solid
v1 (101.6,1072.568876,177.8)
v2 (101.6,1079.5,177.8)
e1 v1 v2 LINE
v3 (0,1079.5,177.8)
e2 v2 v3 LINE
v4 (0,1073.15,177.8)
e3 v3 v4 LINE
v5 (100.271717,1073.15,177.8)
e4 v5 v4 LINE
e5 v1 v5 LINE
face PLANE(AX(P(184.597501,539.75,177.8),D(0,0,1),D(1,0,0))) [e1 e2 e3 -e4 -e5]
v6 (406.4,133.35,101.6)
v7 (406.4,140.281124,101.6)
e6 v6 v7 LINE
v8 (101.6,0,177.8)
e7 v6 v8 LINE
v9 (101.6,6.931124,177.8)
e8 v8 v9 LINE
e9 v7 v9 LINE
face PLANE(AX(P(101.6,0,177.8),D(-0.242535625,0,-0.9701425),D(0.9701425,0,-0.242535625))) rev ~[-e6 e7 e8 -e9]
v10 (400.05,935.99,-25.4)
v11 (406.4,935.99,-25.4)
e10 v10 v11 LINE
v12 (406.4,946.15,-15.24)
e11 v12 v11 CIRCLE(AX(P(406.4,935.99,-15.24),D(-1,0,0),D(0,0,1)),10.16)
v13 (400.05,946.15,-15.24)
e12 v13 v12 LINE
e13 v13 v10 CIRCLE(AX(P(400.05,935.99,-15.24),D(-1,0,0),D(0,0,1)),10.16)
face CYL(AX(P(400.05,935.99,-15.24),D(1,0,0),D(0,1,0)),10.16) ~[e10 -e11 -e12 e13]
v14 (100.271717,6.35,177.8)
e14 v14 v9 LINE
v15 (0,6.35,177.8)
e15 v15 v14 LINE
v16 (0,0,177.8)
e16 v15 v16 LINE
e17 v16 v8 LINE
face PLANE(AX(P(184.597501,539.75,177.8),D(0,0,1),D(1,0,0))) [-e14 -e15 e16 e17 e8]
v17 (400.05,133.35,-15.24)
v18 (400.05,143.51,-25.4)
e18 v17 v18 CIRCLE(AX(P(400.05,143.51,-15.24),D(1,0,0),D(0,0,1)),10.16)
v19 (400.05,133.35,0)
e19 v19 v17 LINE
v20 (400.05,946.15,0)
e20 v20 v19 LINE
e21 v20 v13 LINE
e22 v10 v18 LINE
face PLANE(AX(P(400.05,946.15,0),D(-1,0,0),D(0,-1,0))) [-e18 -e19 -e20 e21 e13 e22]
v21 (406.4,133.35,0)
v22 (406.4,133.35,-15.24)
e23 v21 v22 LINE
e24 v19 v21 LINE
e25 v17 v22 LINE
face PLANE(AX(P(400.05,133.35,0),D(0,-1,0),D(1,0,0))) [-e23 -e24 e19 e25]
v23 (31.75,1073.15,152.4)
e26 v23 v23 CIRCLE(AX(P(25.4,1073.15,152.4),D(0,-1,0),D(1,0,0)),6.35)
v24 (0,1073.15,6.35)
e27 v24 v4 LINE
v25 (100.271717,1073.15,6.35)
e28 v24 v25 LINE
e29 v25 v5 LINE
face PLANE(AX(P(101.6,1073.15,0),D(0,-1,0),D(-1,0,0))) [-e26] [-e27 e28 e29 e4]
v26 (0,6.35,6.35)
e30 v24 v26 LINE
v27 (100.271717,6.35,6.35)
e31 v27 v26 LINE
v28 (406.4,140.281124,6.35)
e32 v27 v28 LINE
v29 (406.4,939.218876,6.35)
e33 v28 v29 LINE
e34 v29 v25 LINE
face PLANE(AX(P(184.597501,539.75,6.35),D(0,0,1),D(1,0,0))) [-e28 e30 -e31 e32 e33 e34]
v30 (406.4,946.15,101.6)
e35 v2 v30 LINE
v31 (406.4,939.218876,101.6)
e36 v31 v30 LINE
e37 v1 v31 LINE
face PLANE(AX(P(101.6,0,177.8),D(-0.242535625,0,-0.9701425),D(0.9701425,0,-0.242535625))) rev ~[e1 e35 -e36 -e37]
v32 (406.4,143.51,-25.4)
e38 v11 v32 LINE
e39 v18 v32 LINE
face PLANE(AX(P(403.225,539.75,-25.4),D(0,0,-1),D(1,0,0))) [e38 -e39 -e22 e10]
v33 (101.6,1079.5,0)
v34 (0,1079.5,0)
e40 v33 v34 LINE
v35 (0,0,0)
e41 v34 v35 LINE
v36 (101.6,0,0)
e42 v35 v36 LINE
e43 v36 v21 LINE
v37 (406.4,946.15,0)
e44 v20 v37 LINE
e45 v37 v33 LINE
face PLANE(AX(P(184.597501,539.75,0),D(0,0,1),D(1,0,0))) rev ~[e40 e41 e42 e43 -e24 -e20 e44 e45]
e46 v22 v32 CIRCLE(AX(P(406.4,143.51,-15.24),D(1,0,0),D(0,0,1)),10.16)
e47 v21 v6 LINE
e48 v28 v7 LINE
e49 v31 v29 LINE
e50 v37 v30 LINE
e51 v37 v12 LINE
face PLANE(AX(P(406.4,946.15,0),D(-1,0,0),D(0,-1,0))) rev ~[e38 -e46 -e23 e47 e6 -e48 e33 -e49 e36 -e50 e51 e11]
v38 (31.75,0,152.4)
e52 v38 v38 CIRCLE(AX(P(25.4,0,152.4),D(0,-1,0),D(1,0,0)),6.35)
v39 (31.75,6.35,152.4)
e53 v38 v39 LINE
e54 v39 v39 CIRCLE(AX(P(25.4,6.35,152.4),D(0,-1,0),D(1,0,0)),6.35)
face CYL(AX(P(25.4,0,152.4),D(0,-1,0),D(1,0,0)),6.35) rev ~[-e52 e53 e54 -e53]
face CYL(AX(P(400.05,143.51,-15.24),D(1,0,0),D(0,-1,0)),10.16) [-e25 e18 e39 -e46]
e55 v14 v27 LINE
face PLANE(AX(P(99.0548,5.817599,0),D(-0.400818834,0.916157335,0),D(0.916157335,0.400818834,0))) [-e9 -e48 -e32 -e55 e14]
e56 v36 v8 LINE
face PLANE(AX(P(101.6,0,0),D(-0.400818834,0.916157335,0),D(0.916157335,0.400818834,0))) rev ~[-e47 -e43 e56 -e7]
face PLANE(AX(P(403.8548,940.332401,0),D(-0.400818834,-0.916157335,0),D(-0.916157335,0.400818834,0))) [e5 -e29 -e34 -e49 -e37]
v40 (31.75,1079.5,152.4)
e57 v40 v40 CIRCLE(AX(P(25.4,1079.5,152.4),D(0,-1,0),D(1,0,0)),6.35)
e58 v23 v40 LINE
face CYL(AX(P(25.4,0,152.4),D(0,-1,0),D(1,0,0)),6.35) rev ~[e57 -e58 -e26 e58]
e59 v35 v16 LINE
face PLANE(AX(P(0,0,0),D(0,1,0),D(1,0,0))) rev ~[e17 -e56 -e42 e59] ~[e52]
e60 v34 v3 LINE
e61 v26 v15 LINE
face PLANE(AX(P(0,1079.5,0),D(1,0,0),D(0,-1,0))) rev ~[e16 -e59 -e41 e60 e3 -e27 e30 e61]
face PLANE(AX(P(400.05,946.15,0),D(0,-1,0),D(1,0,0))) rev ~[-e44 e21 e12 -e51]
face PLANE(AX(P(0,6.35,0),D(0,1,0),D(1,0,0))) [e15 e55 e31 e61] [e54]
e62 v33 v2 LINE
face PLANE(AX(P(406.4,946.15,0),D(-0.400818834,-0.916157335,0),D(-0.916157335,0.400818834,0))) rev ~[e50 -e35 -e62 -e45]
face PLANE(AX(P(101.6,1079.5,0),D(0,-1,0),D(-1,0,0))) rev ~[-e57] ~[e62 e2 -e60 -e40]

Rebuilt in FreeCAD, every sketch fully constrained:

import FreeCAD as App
import Part
import Sketcher

V = App.Vector
Q = App.Units.Quantity


def edges_at(feature, points):
    """Names of the edges that pass closest to the given points."""
    edges = feature.Shape.Edges
    near = lambda p: min(range(len(edges)), key=lambda i: edges[i].distToShape(Part.Vertex(*p))[0])
    return sorted({f"Edge{near(p) + 1}" for p in points})


def faces_at(feature, points):
    """Names of the faces that lie closest to the given points."""
    faces = feature.Shape.Faces
    near = lambda p: min(range(len(faces)), key=lambda i: faces[i].distToShape(Part.Vertex(*p))[0])
    return sorted({f"Face{near(p) + 1}" for p in points})


def add_polygon(sketch, points):
    """Adds a closed chain of lines whose ends are joined by coincident constraints."""
    first, n = sketch.GeometryCount, len(points)
    for a, b in zip(points, points[1:] + points[:1]):
        sketch.addGeometry(Part.LineSegment(App.Vector(*a, 0), App.Vector(*b, 0)), False)
    for i in range(n):
        sketch.addConstraint(Sketcher.Constraint("Coincident", first + i, 2, first + (i + 1) % n, 1))

doc = App.newDocument("Part")
body = doc.addObject("PartDesign::Body", "Body")

# Sketch on XY plane
sketch1 = body.newObject("Sketcher::SketchObject", "Sketch")
sketch1.AttachmentSupport = (doc.getObject("XY_Plane"), [""])
sketch1.MapMode = "FlatFace"
add_polygon(sketch1, [(0, 1080), (0, 0), (102, 0), (406, 133), (406, 946), (102, 1080)])  # lines 0-5
sketch1.addConstraint([
    Sketcher.Constraint("Vertical", 0),
    Sketcher.Constraint("Horizontal", 1),
    Sketcher.Constraint("Vertical", 3),
    Sketcher.Constraint("Horizontal", 5),
    Sketcher.Constraint("Coincident", 0, 2, -1, 1),
    Sketcher.Constraint("Vertical", 1, 2, 4, 2),
    Sketcher.Constraint("Equal", 2, 4),
    Sketcher.Constraint("DistanceX", 1, 1, 1, 2, Q("4 in")),
    Sketcher.Constraint("DistanceY", 3, 1, 3, 2, Q("32 in")),
    Sketcher.Constraint("DistanceY", 0, 2, 0, 1, Q("42.5 in")),
    Sketcher.Constraint("DistanceX", -1, 1, 2, 2, Q("16 in")),
])
pad1 = body.newObject("PartDesign::Pad", "Pad")
pad1.Profile = sketch1
pad1.Length = Q("7 in")
doc.recompute()

thickness = body.newObject("PartDesign::Thickness", "Thickness")
thickness.Base = (pad1, faces_at(pad1, [(203.2, 539.75, 177.8), (0, 539.75, 88.9), (406.4, 539.75, 88.9)]))
thickness.Value = Q("0.25 in")
thickness.Reversed = True
thickness.Join = "Arc"

# Sketch on XZ plane
sketch2 = body.newObject("Sketcher::SketchObject", "Sketch001")
sketch2.AttachmentSupport = (doc.getObject("XZ_Plane"), [""])
sketch2.MapMode = "FlatFace"
sketch2.addGeometry(Part.Circle(V(25, 152, 0), V(0, 0, 1), 6), False)
sketch2.addConstraint([
    Sketcher.Constraint("Diameter", 0, Q("0.5 in")),
    Sketcher.Constraint("DistanceX", -1, 1, 0, 3, Q("1 in")),
    Sketcher.Constraint("DistanceY", -1, 1, 0, 3, Q("6 in")),
])
pocket1 = body.newObject("PartDesign::Pocket", "Pocket")
pocket1.Profile = sketch2
pocket1.Type = "ThroughAll"

# Sketch on XY plane
sketch3 = body.newObject("Sketcher::SketchObject", "Sketch002")
sketch3.AttachmentSupport = (doc.getObject("XY_Plane"), [""])
sketch3.MapMode = "FlatFace"
add_polygon(sketch3, [(400, 133), (400, 946), (406, 946), (406, 133)])  # lines 0-3
sketch3.addConstraint([
    Sketcher.Constraint("Vertical", 0),
    Sketcher.Constraint("Horizontal", 1),
    Sketcher.Constraint("Vertical", 2),
    Sketcher.Constraint("Horizontal", 3),
    Sketcher.Constraint("DistanceY", 0, 1, 0, 2, Q("32 in")),
    Sketcher.Constraint("DistanceX", -1, 1, 1, 2, Q("16 in")),
    Sketcher.Constraint("DistanceX", 1, 1, 1, 2, Q("0.25 in")),
    Sketcher.Constraint("DistanceY", -1, 1, 0, 2, Q("37.25 in")),
])
pad2 = body.newObject("PartDesign::Pad", "Pad001")
pad2.Profile = sketch3
pad2.Length = Q("1 in")
pad2.Reversed = True
doc.recompute()

fillet = body.newObject("PartDesign::Fillet", "Fillet")
fillet.Base = (pad2, edges_at(pad2, [(403.225, 133.35, -25.4), (403.225, 946.15, -25.4)]))
fillet.Radius = Q("0.4 in")

# Sketch on XZ plane
sketch4 = body.newObject("Sketcher::SketchObject", "Sketch003")
sketch4.AttachmentSupport = (doc.getObject("XZ_Plane"), [""])
sketch4.MapMode = "FlatFace"
add_polygon(sketch4, [(406, 102), (406, 178), (102, 178)])  # lines 0-2
sketch4.addConstraint([
    Sketcher.Constraint("Vertical", 0),
    Sketcher.Constraint("Horizontal", 1),
    Sketcher.Constraint("DistanceX", 1, 2, 1, 1, Q("12 in")),
    Sketcher.Constraint("DistanceY", 0, 1, 0, 2, Q("3 in")),
    Sketcher.Constraint("DistanceX", -1, 1, 0, 2, Q("16 in")),
    Sketcher.Constraint("DistanceY", -1, 1, 0, 2, Q("7 in")),
])
pocket2 = body.newObject("PartDesign::Pocket", "Pocket001")
pocket2.Profile = sketch4
pocket2.Type = "ThroughAll"

doc.recompute()
